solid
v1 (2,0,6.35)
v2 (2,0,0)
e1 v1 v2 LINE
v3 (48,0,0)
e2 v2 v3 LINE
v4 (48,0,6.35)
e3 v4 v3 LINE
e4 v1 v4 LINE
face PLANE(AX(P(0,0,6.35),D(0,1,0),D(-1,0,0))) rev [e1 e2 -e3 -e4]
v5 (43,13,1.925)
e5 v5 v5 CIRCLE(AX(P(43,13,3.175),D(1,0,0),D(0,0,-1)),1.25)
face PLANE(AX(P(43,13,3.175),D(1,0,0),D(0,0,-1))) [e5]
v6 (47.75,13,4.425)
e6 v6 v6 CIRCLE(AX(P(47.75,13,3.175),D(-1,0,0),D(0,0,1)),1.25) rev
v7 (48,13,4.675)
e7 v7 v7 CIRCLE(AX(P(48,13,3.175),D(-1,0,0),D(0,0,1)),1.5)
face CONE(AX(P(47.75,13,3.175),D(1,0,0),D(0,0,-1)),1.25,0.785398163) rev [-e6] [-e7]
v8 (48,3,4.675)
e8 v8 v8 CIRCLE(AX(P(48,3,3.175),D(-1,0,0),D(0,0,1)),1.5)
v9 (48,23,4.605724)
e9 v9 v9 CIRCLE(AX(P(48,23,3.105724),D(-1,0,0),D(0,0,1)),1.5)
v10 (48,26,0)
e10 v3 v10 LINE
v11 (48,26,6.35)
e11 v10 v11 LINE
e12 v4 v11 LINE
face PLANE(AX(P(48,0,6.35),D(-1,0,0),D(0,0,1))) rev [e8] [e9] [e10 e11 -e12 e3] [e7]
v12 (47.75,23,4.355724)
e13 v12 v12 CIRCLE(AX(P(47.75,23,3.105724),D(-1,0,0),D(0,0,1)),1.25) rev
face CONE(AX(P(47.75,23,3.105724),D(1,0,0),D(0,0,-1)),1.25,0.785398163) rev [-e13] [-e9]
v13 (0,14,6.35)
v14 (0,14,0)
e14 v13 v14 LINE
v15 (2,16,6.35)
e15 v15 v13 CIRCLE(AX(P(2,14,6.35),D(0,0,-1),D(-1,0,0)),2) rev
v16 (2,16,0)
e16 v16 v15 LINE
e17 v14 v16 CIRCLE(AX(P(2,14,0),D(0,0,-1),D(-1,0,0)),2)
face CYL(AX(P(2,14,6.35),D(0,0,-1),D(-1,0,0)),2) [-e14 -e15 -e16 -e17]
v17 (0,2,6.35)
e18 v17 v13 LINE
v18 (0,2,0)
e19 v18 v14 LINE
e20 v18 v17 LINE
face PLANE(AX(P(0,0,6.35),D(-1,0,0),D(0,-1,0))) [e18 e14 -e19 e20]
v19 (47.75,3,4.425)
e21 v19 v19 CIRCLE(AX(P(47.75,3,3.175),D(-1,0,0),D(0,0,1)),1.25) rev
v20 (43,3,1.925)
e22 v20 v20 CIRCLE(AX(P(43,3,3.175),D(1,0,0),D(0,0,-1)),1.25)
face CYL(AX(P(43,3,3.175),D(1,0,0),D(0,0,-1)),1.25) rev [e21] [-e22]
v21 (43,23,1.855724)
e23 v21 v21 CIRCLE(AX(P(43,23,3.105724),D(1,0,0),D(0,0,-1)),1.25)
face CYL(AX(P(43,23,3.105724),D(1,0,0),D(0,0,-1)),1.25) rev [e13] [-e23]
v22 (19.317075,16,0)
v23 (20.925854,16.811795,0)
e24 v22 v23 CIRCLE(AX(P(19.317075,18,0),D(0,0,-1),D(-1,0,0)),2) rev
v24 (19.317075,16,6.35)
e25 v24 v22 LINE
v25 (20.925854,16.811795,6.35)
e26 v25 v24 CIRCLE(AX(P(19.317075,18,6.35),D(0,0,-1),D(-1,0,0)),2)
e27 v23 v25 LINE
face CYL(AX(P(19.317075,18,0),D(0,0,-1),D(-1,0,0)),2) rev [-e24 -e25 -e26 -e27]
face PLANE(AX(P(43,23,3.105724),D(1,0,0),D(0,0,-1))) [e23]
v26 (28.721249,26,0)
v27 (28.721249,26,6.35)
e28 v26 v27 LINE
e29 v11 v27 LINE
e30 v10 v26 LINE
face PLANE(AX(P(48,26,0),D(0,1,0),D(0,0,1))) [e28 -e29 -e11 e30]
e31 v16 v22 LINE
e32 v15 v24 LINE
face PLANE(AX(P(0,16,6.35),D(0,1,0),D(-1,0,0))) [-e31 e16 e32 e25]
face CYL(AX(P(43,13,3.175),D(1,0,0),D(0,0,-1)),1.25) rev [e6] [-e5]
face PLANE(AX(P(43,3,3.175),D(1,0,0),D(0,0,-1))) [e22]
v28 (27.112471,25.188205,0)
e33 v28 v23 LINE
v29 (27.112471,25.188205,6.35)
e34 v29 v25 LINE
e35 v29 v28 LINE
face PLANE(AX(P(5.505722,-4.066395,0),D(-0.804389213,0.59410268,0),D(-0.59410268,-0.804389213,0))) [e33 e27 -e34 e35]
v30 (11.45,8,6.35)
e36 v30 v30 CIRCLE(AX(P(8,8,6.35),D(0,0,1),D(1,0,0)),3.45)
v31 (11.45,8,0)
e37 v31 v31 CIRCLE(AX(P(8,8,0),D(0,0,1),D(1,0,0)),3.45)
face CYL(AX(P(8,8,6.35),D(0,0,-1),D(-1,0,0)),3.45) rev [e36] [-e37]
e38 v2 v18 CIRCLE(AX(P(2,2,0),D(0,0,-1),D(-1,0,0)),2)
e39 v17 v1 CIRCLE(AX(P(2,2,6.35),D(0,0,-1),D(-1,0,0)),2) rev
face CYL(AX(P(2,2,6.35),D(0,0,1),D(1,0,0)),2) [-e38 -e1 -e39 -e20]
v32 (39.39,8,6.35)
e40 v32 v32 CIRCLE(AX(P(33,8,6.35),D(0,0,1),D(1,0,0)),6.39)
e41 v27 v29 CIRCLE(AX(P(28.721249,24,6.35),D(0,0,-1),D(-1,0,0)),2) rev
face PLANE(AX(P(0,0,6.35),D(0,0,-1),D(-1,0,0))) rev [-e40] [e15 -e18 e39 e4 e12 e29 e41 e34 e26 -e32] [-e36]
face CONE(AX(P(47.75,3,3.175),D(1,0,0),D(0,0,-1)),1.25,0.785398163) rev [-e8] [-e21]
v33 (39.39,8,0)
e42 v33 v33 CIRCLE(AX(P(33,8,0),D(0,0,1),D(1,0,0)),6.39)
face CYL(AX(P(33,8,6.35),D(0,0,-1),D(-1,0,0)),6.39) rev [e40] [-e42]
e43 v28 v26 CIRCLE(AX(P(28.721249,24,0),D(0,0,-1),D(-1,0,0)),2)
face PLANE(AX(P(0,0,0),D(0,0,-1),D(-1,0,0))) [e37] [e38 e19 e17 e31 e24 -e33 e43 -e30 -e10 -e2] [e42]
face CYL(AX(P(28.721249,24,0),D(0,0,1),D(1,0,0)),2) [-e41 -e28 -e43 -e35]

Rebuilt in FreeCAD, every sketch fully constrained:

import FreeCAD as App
import Part
import Sketcher
from FreeCAD import Vector


def edges_at(feature, points):
    """Names of the edges that pass closest to the given points."""
    edges = feature.Shape.Edges
    near = lambda p: min(range(len(edges)), key=lambda i: edges[i].distToShape(Part.Vertex(*p))[0])
    return sorted({f"Edge{near(p) + 1}" for p in points})

doc = App.newDocument("Part")
body = doc.addObject("PartDesign::Body", "Body")

# Sketch on XY plane
sketch1 = body.newObject("Sketcher::SketchObject", "Sketch")
sketch1.AttachmentSupport = (doc.getObject("XY_Plane"), [""])
sketch1.MapMode = "FlatFace"
sketch1.addGeometry(Part.LineSegment(Vector(0, 16, 0), Vector(0, 0, 0)), False)
sketch1.addGeometry(Part.LineSegment(Vector(0, 0, 0), Vector(48, 0, 0)), False)
sketch1.addGeometry(Part.LineSegment(Vector(48, 0, 0), Vector(48, 16, 0)), False)
sketch1.addGeometry(Part.LineSegment(Vector(48, 16, 0), Vector(0, 16, 0)), False)
sketch1.addConstraint(Sketcher.Constraint("Coincident", 0, 2, 1, 1))
sketch1.addConstraint(Sketcher.Constraint("Coincident", 1, 2, 2, 1))
sketch1.addConstraint(Sketcher.Constraint("Coincident", 2, 2, 3, 1))
sketch1.addConstraint(Sketcher.Constraint("Coincident", 3, 2, 0, 1))
sketch1.addConstraint(Sketcher.Constraint("Vertical", 0))
sketch1.addConstraint(Sketcher.Constraint("Horizontal", 1))
sketch1.addConstraint(Sketcher.Constraint("Vertical", 2))
sketch1.addConstraint(Sketcher.Constraint("Horizontal", 3))
sketch1.addConstraint(Sketcher.Constraint("Coincident", 0, 2, -1, 1))
sketch1.addConstraint(Sketcher.Constraint("DistanceX", 1, 1, 1, 2, 48.0))
sketch1.addConstraint(Sketcher.Constraint("DistanceY", 0, 2, 0, 1, 16.0))
pad1 = body.newObject("PartDesign::Pad", "Pad")
pad1.Profile = sketch1
pad1.Length = 6.35

# Sketch on XY plane
sketch2 = body.newObject("Sketcher::SketchObject", "Sketch001")
sketch2.AttachmentSupport = (doc.getObject("XY_Plane"), [""])
sketch2.MapMode = "FlatFace"
sketch2.addGeometry(Part.Circle(Vector(8, 8, 0), Vector(0, 0, 1), 3.5), False)
sketch2.addGeometry(Part.Circle(Vector(33, 8, 0), Vector(0, 0, 1), 6.4), False)
sketch2.addConstraint(Sketcher.Constraint("Horizontal", 0, 3, 1, 3))
sketch2.addConstraint(Sketcher.Constraint("Diameter", 0, 6.9))
sketch2.addConstraint(Sketcher.Constraint("Diameter", 1, 12.78))
sketch2.addConstraint(Sketcher.Constraint("DistanceX", -1, 1, 0, 3, 8.0))
sketch2.addConstraint(Sketcher.Constraint("DistanceY", -1, 1, 0, 3, 8.0))
sketch2.addConstraint(Sketcher.Constraint("DistanceX", -1, 1, 1, 3, 33.0))
pocket1 = body.newObject("PartDesign::Pocket", "Pocket")
pocket1.Profile = sketch2
pocket1.Length = 6.35
pocket1.Reversed = True
doc.recompute()

fillet = body.newObject("PartDesign::Fillet", "Fillet")
fillet.Base = (pocket1, edges_at(pocket1, [(0, 0, 3.175), (0, 16, 3.175)]))
fillet.Radius = 2

# Sketch on YZ plane
sketch3 = body.newObject("Sketcher::SketchObject", "Sketch002")
sketch3.AttachmentSupport = (doc.getObject("YZ_Plane"), [""])
sketch3.MapMode = "FlatFace"
sketch3.AttachmentOffset = App.Placement(Vector(0, 0, 48), App.Rotation())
sketch3.addGeometry(Part.Circle(Vector(13, 3.2, 0), Vector(0, 0, 1), 1.2), False)
sketch3.addGeometry(Part.Circle(Vector(3, 3.2, 0), Vector(0, 0, 1), 1.2), False)
sketch3.addConstraint(Sketcher.Constraint("Equal", 0, 1))
sketch3.addConstraint(Sketcher.Constraint("Horizontal", 0, 3, 1, 3))
sketch3.addConstraint(Sketcher.Constraint("Diameter", 0, 2.5))
sketch3.addConstraint(Sketcher.Constraint("DistanceX", -1, 1, 0, 3, 13.0))
sketch3.addConstraint(Sketcher.Constraint("DistanceX", -1, 1, 1, 3, 3.0))
sketch3.addConstraint(Sketcher.Constraint("DistanceY", -1, 1, 0, 3, 3.175))
pocket2 = body.newObject("PartDesign::Pocket", "Pocket001")
pocket2.Profile = sketch3
pocket2.Length = 5

# Sketch on XY plane
sketch4 = body.newObject("Sketcher::SketchObject", "Sketch003")
sketch4.AttachmentSupport = (doc.getObject("XY_Plane"), [""])
sketch4.MapMode = "FlatFace"
sketch4.AttachmentOffset = App.Placement(Vector(0, 0, 6.35), App.Rotation())
sketch4.addGeometry(Part.LineSegment(Vector(20, 16, 0), Vector(48, 16, 0)), False)
sketch4.addGeometry(Part.LineSegment(Vector(48, 16, 0), Vector(48, 26, 0)), False)
sketch4.addGeometry(Part.LineSegment(Vector(48, 26, 0), Vector(28, 26, 0)), False)
sketch4.addGeometry(Part.LineSegment(Vector(28, 26, 0), Vector(20, 16, 0)), False)
sketch4.addConstraint(Sketcher.Constraint("Coincident", 0, 2, 1, 1))
sketch4.addConstraint(Sketcher.Constraint("Coincident", 1, 2, 2, 1))
sketch4.addConstraint(Sketcher.Constraint("Coincident", 2, 2, 3, 1))
sketch4.addConstraint(Sketcher.Constraint("Coincident", 3, 2, 0, 1))
sketch4.addConstraint(Sketcher.Constraint("Horizontal", 0))
sketch4.addConstraint(Sketcher.Constraint("Vertical", 1))
sketch4.addConstraint(Sketcher.Constraint("Horizontal", 2))
sketch4.addConstraint(Sketcher.Constraint("DistanceY", 1, 1, 1, 2, 10.0))
sketch4.addConstraint(Sketcher.Constraint("DistanceX", -1, 1, 0, 2, 48.0))
sketch4.addConstraint(Sketcher.Constraint("DistanceY", -1, 1, 0, 2, 16.0))
sketch4.addConstraint(Sketcher.Constraint("DistanceX", 0, 1, 0, 2, 27.673718))
sketch4.addConstraint(Sketcher.Constraint("DistanceX", 2, 2, 2, 1, 20.287957))
pad2 = body.newObject("PartDesign::Pad", "Pad001")
pad2.Profile = sketch4
pad2.Length = 6.35
pad2.Reversed = True
doc.recompute()

fillet2 = body.newObject("PartDesign::Fillet", "Fillet001")
fillet2.Base = (pad2, edges_at(pad2, [(20.326, 16, 3.175), (27.712, 26, 3.175)]))
fillet2.Radius = 2

# Sketch on YZ plane
sketch5 = body.newObject("Sketcher::SketchObject", "Sketch004")
sketch5.AttachmentSupport = (doc.getObject("YZ_Plane"), [""])
sketch5.MapMode = "FlatFace"
sketch5.AttachmentOffset = App.Placement(Vector(0, 0, 48), App.Rotation())
sketch5.addGeometry(Part.Circle(Vector(23, 3.1, 0), Vector(0, 0, 1), 1.2), False)
sketch5.addConstraint(Sketcher.Constraint("Diameter", 0, 2.5))
sketch5.addConstraint(Sketcher.Constraint("DistanceX", -1, 1, 0, 3, 23.0))
sketch5.addConstraint(Sketcher.Constraint("DistanceY", -1, 1, 0, 3, 3.105724))
pocket3 = body.newObject("PartDesign::Pocket", "Pocket002")
pocket3.Profile = sketch5
pocket3.Length = 5
doc.recompute()

chamfer = body.newObject("PartDesign::Chamfer", "Chamfer")
chamfer.Base = (pocket3, edges_at(pocket3, [(48, 13, 4.425), (48, 3, 4.425), (48, 23, 4.356)]))
chamfer.Size = 0.25

doc.recompute()
